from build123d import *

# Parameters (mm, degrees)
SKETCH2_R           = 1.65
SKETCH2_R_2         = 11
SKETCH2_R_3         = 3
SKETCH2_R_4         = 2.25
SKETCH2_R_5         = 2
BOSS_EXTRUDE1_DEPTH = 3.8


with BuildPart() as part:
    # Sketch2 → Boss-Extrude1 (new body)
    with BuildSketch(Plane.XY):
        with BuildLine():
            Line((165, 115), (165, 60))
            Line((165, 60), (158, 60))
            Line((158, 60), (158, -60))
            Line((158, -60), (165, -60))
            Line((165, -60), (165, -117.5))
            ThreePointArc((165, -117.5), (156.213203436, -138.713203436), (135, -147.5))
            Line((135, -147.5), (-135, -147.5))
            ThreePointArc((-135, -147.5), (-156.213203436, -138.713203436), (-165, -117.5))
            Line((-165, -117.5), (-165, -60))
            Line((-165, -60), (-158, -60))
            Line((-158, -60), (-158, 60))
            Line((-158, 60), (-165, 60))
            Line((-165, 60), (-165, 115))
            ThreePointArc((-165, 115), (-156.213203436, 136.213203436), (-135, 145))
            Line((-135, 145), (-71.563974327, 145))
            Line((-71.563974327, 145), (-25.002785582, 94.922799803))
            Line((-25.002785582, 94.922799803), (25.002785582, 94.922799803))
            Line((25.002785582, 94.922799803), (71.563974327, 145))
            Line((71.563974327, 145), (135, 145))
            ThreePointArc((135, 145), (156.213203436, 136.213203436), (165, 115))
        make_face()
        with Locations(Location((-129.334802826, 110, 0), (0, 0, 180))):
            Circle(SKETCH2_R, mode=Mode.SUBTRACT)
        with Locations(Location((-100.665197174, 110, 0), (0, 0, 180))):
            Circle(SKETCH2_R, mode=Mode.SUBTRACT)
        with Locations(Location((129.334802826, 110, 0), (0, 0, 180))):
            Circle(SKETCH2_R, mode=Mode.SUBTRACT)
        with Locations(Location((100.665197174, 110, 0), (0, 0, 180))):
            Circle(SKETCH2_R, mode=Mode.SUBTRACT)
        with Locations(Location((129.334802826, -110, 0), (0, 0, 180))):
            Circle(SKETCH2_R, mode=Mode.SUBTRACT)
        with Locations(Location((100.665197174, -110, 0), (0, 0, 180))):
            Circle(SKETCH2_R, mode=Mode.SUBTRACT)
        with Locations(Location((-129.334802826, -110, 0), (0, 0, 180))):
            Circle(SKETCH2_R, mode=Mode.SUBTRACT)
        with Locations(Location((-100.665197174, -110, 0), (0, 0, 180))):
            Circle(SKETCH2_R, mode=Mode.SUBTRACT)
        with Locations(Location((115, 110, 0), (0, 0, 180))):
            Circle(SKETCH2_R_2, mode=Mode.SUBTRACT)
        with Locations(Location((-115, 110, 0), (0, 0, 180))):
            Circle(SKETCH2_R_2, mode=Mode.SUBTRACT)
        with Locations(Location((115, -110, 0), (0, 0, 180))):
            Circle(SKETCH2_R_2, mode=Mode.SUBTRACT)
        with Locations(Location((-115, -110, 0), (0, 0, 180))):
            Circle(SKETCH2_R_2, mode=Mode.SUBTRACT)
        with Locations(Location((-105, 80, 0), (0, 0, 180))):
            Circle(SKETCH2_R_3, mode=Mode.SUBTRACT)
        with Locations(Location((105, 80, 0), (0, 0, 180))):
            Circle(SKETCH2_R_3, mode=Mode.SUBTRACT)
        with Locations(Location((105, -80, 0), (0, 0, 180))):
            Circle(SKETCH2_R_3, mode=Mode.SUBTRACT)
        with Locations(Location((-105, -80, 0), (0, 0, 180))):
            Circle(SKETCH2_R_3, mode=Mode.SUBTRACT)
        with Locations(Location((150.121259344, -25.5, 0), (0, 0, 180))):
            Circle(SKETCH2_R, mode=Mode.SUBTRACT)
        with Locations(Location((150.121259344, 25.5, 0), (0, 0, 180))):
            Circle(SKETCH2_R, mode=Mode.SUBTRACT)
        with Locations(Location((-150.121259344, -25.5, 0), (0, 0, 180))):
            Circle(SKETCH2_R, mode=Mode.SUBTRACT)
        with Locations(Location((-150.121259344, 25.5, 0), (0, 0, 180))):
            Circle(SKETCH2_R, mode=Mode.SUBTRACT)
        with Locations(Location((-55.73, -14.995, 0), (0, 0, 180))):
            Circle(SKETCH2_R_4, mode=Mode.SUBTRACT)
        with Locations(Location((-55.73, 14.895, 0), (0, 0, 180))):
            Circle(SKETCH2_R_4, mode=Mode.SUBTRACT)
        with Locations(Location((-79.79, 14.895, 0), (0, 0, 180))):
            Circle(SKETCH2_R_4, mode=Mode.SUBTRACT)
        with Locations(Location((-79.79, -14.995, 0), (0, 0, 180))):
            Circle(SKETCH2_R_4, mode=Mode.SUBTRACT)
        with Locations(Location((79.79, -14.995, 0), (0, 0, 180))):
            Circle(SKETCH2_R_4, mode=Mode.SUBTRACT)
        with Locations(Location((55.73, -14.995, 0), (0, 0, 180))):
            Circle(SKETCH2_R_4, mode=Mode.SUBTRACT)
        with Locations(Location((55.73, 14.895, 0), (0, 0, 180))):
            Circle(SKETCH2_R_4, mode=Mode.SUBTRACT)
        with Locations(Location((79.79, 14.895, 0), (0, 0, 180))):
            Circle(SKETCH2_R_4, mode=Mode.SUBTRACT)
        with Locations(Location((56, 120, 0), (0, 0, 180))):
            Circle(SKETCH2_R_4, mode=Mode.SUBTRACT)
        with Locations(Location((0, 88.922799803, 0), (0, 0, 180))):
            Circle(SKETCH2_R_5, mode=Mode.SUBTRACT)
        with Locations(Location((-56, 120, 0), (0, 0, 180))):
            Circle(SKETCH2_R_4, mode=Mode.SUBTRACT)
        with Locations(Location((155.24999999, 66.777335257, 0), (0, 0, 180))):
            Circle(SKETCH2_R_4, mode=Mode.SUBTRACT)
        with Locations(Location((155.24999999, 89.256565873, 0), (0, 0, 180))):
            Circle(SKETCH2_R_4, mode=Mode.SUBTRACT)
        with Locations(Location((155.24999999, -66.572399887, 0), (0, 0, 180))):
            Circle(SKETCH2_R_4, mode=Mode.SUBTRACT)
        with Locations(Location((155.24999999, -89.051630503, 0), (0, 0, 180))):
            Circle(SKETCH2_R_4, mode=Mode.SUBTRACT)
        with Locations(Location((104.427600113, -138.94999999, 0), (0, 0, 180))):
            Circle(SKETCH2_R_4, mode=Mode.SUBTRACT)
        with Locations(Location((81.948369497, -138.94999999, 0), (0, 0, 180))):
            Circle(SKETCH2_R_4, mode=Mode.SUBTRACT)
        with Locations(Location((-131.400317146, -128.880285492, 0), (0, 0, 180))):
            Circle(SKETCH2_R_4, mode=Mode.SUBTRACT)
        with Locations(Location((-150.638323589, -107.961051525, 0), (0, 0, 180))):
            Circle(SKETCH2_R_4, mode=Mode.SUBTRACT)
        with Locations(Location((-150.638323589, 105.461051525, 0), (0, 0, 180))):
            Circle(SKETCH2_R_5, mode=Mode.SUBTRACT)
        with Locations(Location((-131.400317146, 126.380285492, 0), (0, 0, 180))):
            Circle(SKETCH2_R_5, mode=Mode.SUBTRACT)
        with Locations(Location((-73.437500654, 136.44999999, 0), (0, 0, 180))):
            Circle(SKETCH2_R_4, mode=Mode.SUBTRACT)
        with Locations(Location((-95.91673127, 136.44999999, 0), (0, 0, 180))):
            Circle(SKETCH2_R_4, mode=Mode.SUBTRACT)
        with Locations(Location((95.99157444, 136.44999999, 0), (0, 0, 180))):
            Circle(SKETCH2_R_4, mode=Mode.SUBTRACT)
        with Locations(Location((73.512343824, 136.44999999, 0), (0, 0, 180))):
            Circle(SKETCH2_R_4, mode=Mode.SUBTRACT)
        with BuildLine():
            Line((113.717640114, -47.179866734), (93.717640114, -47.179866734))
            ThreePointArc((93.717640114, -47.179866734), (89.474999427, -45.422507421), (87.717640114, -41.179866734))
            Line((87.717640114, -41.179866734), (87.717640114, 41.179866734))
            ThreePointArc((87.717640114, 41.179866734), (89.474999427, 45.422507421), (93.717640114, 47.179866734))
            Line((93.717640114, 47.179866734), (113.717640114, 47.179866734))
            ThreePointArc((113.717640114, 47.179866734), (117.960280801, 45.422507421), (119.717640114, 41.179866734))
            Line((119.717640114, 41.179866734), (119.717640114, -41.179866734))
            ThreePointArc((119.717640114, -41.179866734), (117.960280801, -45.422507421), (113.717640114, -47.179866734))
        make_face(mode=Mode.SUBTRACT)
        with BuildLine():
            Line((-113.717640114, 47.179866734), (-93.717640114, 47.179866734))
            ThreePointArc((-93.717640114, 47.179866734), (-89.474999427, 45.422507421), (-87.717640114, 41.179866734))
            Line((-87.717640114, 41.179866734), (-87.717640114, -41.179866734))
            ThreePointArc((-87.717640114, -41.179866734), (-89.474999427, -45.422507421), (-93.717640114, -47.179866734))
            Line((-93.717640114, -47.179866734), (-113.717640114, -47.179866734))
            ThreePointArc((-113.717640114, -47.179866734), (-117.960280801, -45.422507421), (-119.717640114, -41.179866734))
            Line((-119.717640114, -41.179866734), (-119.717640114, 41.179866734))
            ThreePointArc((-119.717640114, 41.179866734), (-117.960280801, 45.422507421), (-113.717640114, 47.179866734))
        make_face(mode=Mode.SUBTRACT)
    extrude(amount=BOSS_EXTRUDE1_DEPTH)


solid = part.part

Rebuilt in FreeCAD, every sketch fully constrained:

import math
import FreeCAD as App
import Part
import Sketcher

V = App.Vector

doc = App.newDocument("Part")
body = doc.addObject("PartDesign::Body", "Body")

sketch1 = body.newObject("Sketcher::SketchObject", "Sketch")
sketch1.AttachmentSupport = (doc.getObject("XY_Plane"), [""])
sketch1.MapMode = "FlatFace"
sketch1.addGeometry(Part.LineSegment(V(165, 60, 0), V(165, 115, 0)), False)
sketch1.addGeometry(Part.ArcOfCircle(Part.Circle(V(135, 115, 0), V(0, 0, 1), 30), math.radians(0), math.radians(90)), False)
sketch1.addGeometry(Part.LineSegment(V(135, 145, 0), V(71.563974, 145, 0)), False)
sketch1.addGeometry(Part.LineSegment(V(71.563974, 145, 0), V(25.002786, 94.9228, 0)), False)
sketch1.addGeometry(Part.LineSegment(V(25.002786, 94.9228, 0), V(-25.002786, 94.9228, 0)), False)
sketch1.addGeometry(Part.LineSegment(V(-25.002786, 94.9228, 0), V(-71.563974, 145, 0)), False)
sketch1.addGeometry(Part.LineSegment(V(-71.563974, 145, 0), V(-135, 145, 0)), False)
sketch1.addGeometry(Part.ArcOfCircle(Part.Circle(V(-135, 115, 0), V(0, 0, 1), 30), math.radians(90), math.radians(180)), False)
sketch1.addGeometry(Part.LineSegment(V(-165, 115, 0), V(-165, 60, 0)), False)
sketch1.addGeometry(Part.LineSegment(V(-165, 60, 0), V(-158, 60, 0)), False)
sketch1.addGeometry(Part.LineSegment(V(-158, 60, 0), V(-158, -60, 0)), False)
sketch1.addGeometry(Part.LineSegment(V(-158, -60, 0), V(-165, -60, 0)), False)
sketch1.addGeometry(Part.LineSegment(V(-165, -60, 0), V(-165, -117.5, 0)), False)
sketch1.addGeometry(Part.ArcOfCircle(Part.Circle(V(-135, -117.5, 0), V(0, 0, 1), 30), math.radians(180), math.radians(270)), False)
sketch1.addGeometry(Part.LineSegment(V(-135, -147.5, 0), V(135, -147.5, 0)), False)
sketch1.addGeometry(Part.ArcOfCircle(Part.Circle(V(135, -117.5, 0), V(0, 0, 1), 30), math.radians(-90), math.radians(0)), False)
sketch1.addGeometry(Part.LineSegment(V(165, -117.5, 0), V(165, -60, 0)), False)
sketch1.addGeometry(Part.LineSegment(V(165, -60, 0), V(158, -60, 0)), False)
sketch1.addGeometry(Part.LineSegment(V(158, -60, 0), V(158, 60, 0)), False)
sketch1.addGeometry(Part.LineSegment(V(158, 60, 0), V(165, 60, 0)), False)
sketch1.addGeometry(Part.Circle(V(129.334803, -110, 0), V(0, 0, 1), 1.65), False)
sketch1.addGeometry(Part.Circle(V(104.4276, -138.95, 0), V(0, 0, 1), 2.25), False)
sketch1.addGeometry(Part.Circle(V(81.948369, -138.95, 0), V(0, 0, 1), 2.25), False)
sketch1.addGeometry(Part.Circle(V(115, -110, 0), V(0, 0, 1), 11), False)
sketch1.addGeometry(Part.Circle(V(100.665197, -110, 0), V(0, 0, 1), 1.65), False)
sketch1.addGeometry(Part.Circle(V(155.25, -89.051631, 0), V(0, 0, 1), 2.25), False)
sketch1.addGeometry(Part.Circle(V(105, -80, 0), V(0, 0, 1), 3), False)
sketch1.addGeometry(Part.Circle(V(155.25, -66.5724, 0), V(0, 0, 1), 2.25), False)
sketch1.addGeometry(Part.Circle(V(150.121259, -25.5, 0), V(0, 0, 1), 1.65), False)
sketch1.addGeometry(Part.Circle(V(79.79, -14.995, 0), V(0, 0, 1), 2.25), False)
sketch1.addGeometry(Part.Circle(V(55.73, -14.995, 0), V(0, 0, 1), 2.25), False)
sketch1.addGeometry(Part.Circle(V(-100.665197, -110, 0), V(0, 0, 1), 1.65), False)
sketch1.addGeometry(Part.Circle(V(-131.400317, -128.880285, 0), V(0, 0, 1), 2.25), False)
sketch1.addGeometry(Part.Circle(V(-115, -110, 0), V(0, 0, 1), 11), False)
sketch1.addGeometry(Part.Circle(V(-129.334803, -110, 0), V(0, 0, 1), 1.65), False)
sketch1.addGeometry(Part.Circle(V(-150.638324, -107.961052, 0), V(0, 0, 1), 2.25), False)
sketch1.addGeometry(Part.Circle(V(-105, -80, 0), V(0, 0, 1), 3), False)
sketch1.addGeometry(Part.Circle(V(-55.73, -14.995, 0), V(0, 0, 1), 2.25), False)
sketch1.addGeometry(Part.Circle(V(-79.79, -14.995, 0), V(0, 0, 1), 2.25), False)
sketch1.addGeometry(Part.Circle(V(-150.121259, -25.5, 0), V(0, 0, 1), 1.65), False)
sketch1.addGeometry(Part.Circle(V(150.121259, 25.5, 0), V(0, 0, 1), 1.65), False)
sketch1.addGeometry(Part.LineSegment(V(113.71764, -47.179867, 0), V(93.71764, -47.179867, 0)), False)
sketch1.addGeometry(Part.ArcOfCircle(Part.Circle(V(93.71764, -41.179867, 0), V(0, 0, 1), 6), math.radians(180), math.radians(270)), False)
sketch1.addGeometry(Part.LineSegment(V(87.71764, -41.179867, 0), V(87.71764, 41.179867, 0)), False)
sketch1.addGeometry(Part.ArcOfCircle(Part.Circle(V(93.71764, 41.179867, 0), V(0, 0, 1), 6), math.radians(90), math.radians(180)), False)
sketch1.addGeometry(Part.LineSegment(V(93.71764, 47.179867, 0), V(113.71764, 47.179867, 0)), False)
sketch1.addGeometry(Part.ArcOfCircle(Part.Circle(V(113.71764, 41.179867, 0), V(0, 0, 1), 6), math.radians(0), math.radians(90)), False)
sketch1.addGeometry(Part.LineSegment(V(119.71764, 41.179867, 0), V(119.71764, -41.179867, 0)), False)
sketch1.addGeometry(Part.ArcOfCircle(Part.Circle(V(113.71764, -41.179867, 0), V(0, 0, 1), 6), math.radians(-90), math.radians(0)), False)
sketch1.addGeometry(Part.Circle(V(155.25, 66.777335, 0), V(0, 0, 1), 2.25), False)
sketch1.addGeometry(Part.Circle(V(79.79, 14.895, 0), V(0, 0, 1), 2.25), False)
sketch1.addGeometry(Part.Circle(V(55.73, 14.895, 0), V(0, 0, 1), 2.25), False)
sketch1.addGeometry(Part.Circle(V(155.25, 89.256566, 0), V(0, 0, 1), 2.25), False)
sketch1.addGeometry(Part.Circle(V(105, 80, 0), V(0, 0, 1), 3), False)
sketch1.addGeometry(Part.Circle(V(129.334803, 110, 0), V(0, 0, 1), 1.65), False)
sketch1.addGeometry(Part.Circle(V(115, 110, 0), V(0, 0, 1), 11), False)
sketch1.addGeometry(Part.Circle(V(100.665197, 110, 0), V(0, 0, 1), 1.65), False)
sketch1.addGeometry(Part.Circle(V(95.991574, 136.45, 0), V(0, 0, 1), 2.25), False)
sketch1.addGeometry(Part.Circle(V(56, 120, 0), V(0, 0, 1), 2.25), False)
sketch1.addGeometry(Part.Circle(V(73.512344, 136.45, 0), V(0, 0, 1), 2.25), False)
sketch1.addGeometry(Part.Circle(V(-55.73, 14.895, 0), V(0, 0, 1), 2.25), False)
sketch1.addGeometry(Part.Circle(V(-79.79, 14.895, 0), V(0, 0, 1), 2.25), False)
sketch1.addGeometry(Part.LineSegment(V(-113.71764, 47.179867, 0), V(-93.71764, 47.179867, 0)), False)
sketch1.addGeometry(Part.ArcOfCircle(Part.Circle(V(-93.71764, 41.179867, 0), V(0, 0, 1), 6), math.radians(0), math.radians(90)), False)
sketch1.addGeometry(Part.LineSegment(V(-87.71764, 41.179867, 0), V(-87.71764, -41.179867, 0)), False)
sketch1.addGeometry(Part.ArcOfCircle(Part.Circle(V(-93.71764, -41.179867, 0), V(0, 0, 1), 6), math.radians(-90), math.radians(0)), False)
sketch1.addGeometry(Part.LineSegment(V(-93.71764, -47.179867, 0), V(-113.71764, -47.179867, 0)), False)
sketch1.addGeometry(Part.ArcOfCircle(Part.Circle(V(-113.71764, -41.179867, 0), V(0, 0, 1), 6), math.radians(180), math.radians(270)), False)
sketch1.addGeometry(Part.LineSegment(V(-119.71764, -41.179867, 0), V(-119.71764, 41.179867, 0)), False)
sketch1.addGeometry(Part.ArcOfCircle(Part.Circle(V(-113.71764, 41.179867, 0), V(0, 0, 1), 6), math.radians(90), math.radians(180)), False)
sketch1.addGeometry(Part.Circle(V(-150.121259, 25.5, 0), V(0, 0, 1), 1.65), False)
sketch1.addGeometry(Part.Circle(V(0, 88.9228, 0), V(0, 0, 1), 2), False)
sketch1.addGeometry(Part.Circle(V(-56, 120, 0), V(0, 0, 1), 2.25), False)
sketch1.addGeometry(Part.Circle(V(-73.437501, 136.45, 0), V(0, 0, 1), 2.25), False)
sketch1.addGeometry(Part.Circle(V(-105, 80, 0), V(0, 0, 1), 3), False)
sketch1.addGeometry(Part.Circle(V(-100.665197, 110, 0), V(0, 0, 1), 1.65), False)
sketch1.addGeometry(Part.Circle(V(-95.916731, 136.45, 0), V(0, 0, 1), 2.25), False)
sketch1.addGeometry(Part.Circle(V(-115, 110, 0), V(0, 0, 1), 11), False)
sketch1.addGeometry(Part.Circle(V(-129.334803, 110, 0), V(0, 0, 1), 1.65), False)
sketch1.addGeometry(Part.Circle(V(-150.638324, 105.461052, 0), V(0, 0, 1), 2), False)
sketch1.addGeometry(Part.Circle(V(-131.400317, 126.380285, 0), V(0, 0, 1), 2), False)
sketch1.addConstraint(Sketcher.Constraint("Tangent", 0, 2, 1, 1))
sketch1.addConstraint(Sketcher.Constraint("Tangent", 1, 2, 2, 1))
sketch1.addConstraint(Sketcher.Constraint("Coincident", 2, 2, 3, 1))
sketch1.addConstraint(Sketcher.Constraint("Coincident", 3, 2, 4, 1))
sketch1.addConstraint(Sketcher.Constraint("Coincident", 4, 2, 5, 1))
sketch1.addConstraint(Sketcher.Constraint("Coincident", 5, 2, 6, 1))
sketch1.addConstraint(Sketcher.Constraint("Tangent", 6, 2, 7, 1))
sketch1.addConstraint(Sketcher.Constraint("Tangent", 7, 2, 8, 1))
sketch1.addConstraint(Sketcher.Constraint("Coincident", 8, 2, 9, 1))
sketch1.addConstraint(Sketcher.Constraint("Coincident", 9, 2, 10, 1))
sketch1.addConstraint(Sketcher.Constraint("Coincident", 10, 2, 11, 1))
sketch1.addConstraint(Sketcher.Constraint("Coincident", 11, 2, 12, 1))
sketch1.addConstraint(Sketcher.Constraint("Tangent", 12, 2, 13, 1))
sketch1.addConstraint(Sketcher.Constraint("Tangent", 13, 2, 14, 1))
sketch1.addConstraint(Sketcher.Constraint("Tangent", 14, 2, 15, 1))
sketch1.addConstraint(Sketcher.Constraint("Tangent", 15, 2, 16, 1))
sketch1.addConstraint(Sketcher.Constraint("Coincident", 16, 2, 17, 1))
sketch1.addConstraint(Sketcher.Constraint("Coincident", 17, 2, 18, 1))
sketch1.addConstraint(Sketcher.Constraint("Coincident", 18, 2, 19, 1))
sketch1.addConstraint(Sketcher.Constraint("Coincident", 19, 2, 0, 1))
sketch1.addConstraint(Sketcher.Constraint("Tangent", 41, 2, 42, 2))
sketch1.addConstraint(Sketcher.Constraint("Tangent", 42, 1, 43, 1))
sketch1.addConstraint(Sketcher.Constraint("Tangent", 43, 2, 44, 2))
sketch1.addConstraint(Sketcher.Constraint("Tangent", 44, 1, 45, 1))
sketch1.addConstraint(Sketcher.Constraint("Tangent", 45, 2, 46, 2))
sketch1.addConstraint(Sketcher.Constraint("Tangent", 46, 1, 47, 1))
sketch1.addConstraint(Sketcher.Constraint("Tangent", 47, 2, 48, 2))
sketch1.addConstraint(Sketcher.Constraint("Tangent", 48, 1, 41, 1))
sketch1.addConstraint(Sketcher.Constraint("Tangent", 62, 2, 63, 2))
sketch1.addConstraint(Sketcher.Constraint("Tangent", 63, 1, 64, 1))
sketch1.addConstraint(Sketcher.Constraint("Tangent", 64, 2, 65, 2))
sketch1.addConstraint(Sketcher.Constraint("Tangent", 65, 1, 66, 1))
sketch1.addConstraint(Sketcher.Constraint("Tangent", 66, 2, 67, 2))
sketch1.addConstraint(Sketcher.Constraint("Tangent", 67, 1, 68, 1))
sketch1.addConstraint(Sketcher.Constraint("Tangent", 68, 2, 69, 2))
sketch1.addConstraint(Sketcher.Constraint("Tangent", 69, 1, 62, 1))
sketch1.addConstraint(Sketcher.Constraint("Vertical", 0))
sketch1.addConstraint(Sketcher.Constraint("Horizontal", 2))
sketch1.addConstraint(Sketcher.Constraint("Horizontal", 4))
sketch1.addConstraint(Sketcher.Constraint("Horizontal", 6))
sketch1.addConstraint(Sketcher.Constraint("Vertical", 8))
sketch1.addConstraint(Sketcher.Constraint("Horizontal", 9))
sketch1.addConstraint(Sketcher.Constraint("Vertical", 10))
sketch1.addConstraint(Sketcher.Constraint("Horizontal", 11))
sketch1.addConstraint(Sketcher.Constraint("Vertical", 12))
sketch1.addConstraint(Sketcher.Constraint("Horizontal", 14))
sketch1.addConstraint(Sketcher.Constraint("Vertical", 16))
sketch1.addConstraint(Sketcher.Constraint("Horizontal", 17))
sketch1.addConstraint(Sketcher.Constraint("Vertical", 18))
sketch1.addConstraint(Sketcher.Constraint("Horizontal", 19))
sketch1.addConstraint(Sketcher.Constraint("Horizontal", 41))
sketch1.addConstraint(Sketcher.Constraint("Vertical", 43))
sketch1.addConstraint(Sketcher.Constraint("Horizontal", 45))
sketch1.addConstraint(Sketcher.Constraint("Vertical", 47))
sketch1.addConstraint(Sketcher.Constraint("Horizontal", 62))
sketch1.addConstraint(Sketcher.Constraint("Vertical", 64))
sketch1.addConstraint(Sketcher.Constraint("Horizontal", 66))
sketch1.addConstraint(Sketcher.Constraint("Vertical", 68))
sketch1.addConstraint(Sketcher.Constraint("Equal", 1, 7))
sketch1.addConstraint(Sketcher.Constraint("Equal", 7, 13))
sketch1.addConstraint(Sketcher.Constraint("Equal", 13, 15))
sketch1.addConstraint(Sketcher.Constraint("Equal", 21, 22))
sketch1.addConstraint(Sketcher.Constraint("Equal", 20, 24))
sketch1.addConstraint(Sketcher.Constraint("Equal", 22, 25))
sketch1.addConstraint(Sketcher.Constraint("Equal", 25, 27))
sketch1.addConstraint(Sketcher.Constraint("Equal", 24, 28))
sketch1.addConstraint(Sketcher.Constraint("Equal", 27, 29))
sketch1.addConstraint(Sketcher.Constraint("Equal", 29, 30))
sketch1.addConstraint(Sketcher.Constraint("Equal", 28, 31))
sketch1.addConstraint(Sketcher.Constraint("Equal", 30, 32))
sketch1.addConstraint(Sketcher.Constraint("Equal", 23, 33))
sketch1.addConstraint(Sketcher.Constraint("Equal", 31, 34))
sketch1.addConstraint(Sketcher.Constraint("Equal", 32, 35))
sketch1.addConstraint(Sketcher.Constraint("Equal", 26, 36))
sketch1.addConstraint(Sketcher.Constraint("Equal", 35, 37))
sketch1.addConstraint(Sketcher.Constraint("Equal", 37, 38))
sketch1.addConstraint(Sketcher.Constraint("Equal", 34, 39))
sketch1.addConstraint(Sketcher.Constraint("Equal", 39, 40))
sketch1.addConstraint(Sketcher.Constraint("Equal", 42, 44))
sketch1.addConstraint(Sketcher.Constraint("Equal", 44, 46))
sketch1.addConstraint(Sketcher.Constraint("Equal", 46, 48))
sketch1.addConstraint(Sketcher.Constraint("Equal", 38, 49))
sketch1.addConstraint(Sketcher.Constraint("Equal", 49, 50))
sketch1.addConstraint(Sketcher.Constraint("Equal", 50, 51))
sketch1.addConstraint(Sketcher.Constraint("Equal", 51, 52))
sketch1.addConstraint(Sketcher.Constraint("Equal", 36, 53))
sketch1.addConstraint(Sketcher.Constraint("Equal", 40, 54))
sketch1.addConstraint(Sketcher.Constraint("Equal", 33, 55))
sketch1.addConstraint(Sketcher.Constraint("Equal", 54, 56))
sketch1.addConstraint(Sketcher.Constraint("Equal", 52, 57))
sketch1.addConstraint(Sketcher.Constraint("Equal", 57, 58))
sketch1.addConstraint(Sketcher.Constraint("Equal", 58, 59))
sketch1.addConstraint(Sketcher.Constraint("Equal", 59, 60))
sketch1.addConstraint(Sketcher.Constraint("Equal", 60, 61))
sketch1.addConstraint(Sketcher.Constraint("Equal", 48, 63))
sketch1.addConstraint(Sketcher.Constraint("Equal", 63, 65))
sketch1.addConstraint(Sketcher.Constraint("Equal", 65, 67))
sketch1.addConstraint(Sketcher.Constraint("Equal", 67, 69))
sketch1.addConstraint(Sketcher.Constraint("Equal", 56, 70))
sketch1.addConstraint(Sketcher.Constraint("Equal", 61, 72))
sketch1.addConstraint(Sketcher.Constraint("Equal", 72, 73))
sketch1.addConstraint(Sketcher.Constraint("Equal", 53, 74))
sketch1.addConstraint(Sketcher.Constraint("Equal", 70, 75))
sketch1.addConstraint(Sketcher.Constraint("Equal", 73, 76))
sketch1.addConstraint(Sketcher.Constraint("Equal", 55, 77))
sketch1.addConstraint(Sketcher.Constraint("Equal", 75, 78))
sketch1.addConstraint(Sketcher.Constraint("Equal", 71, 79))
sketch1.addConstraint(Sketcher.Constraint("Equal", 79, 80))
sketch1.addConstraint(Sketcher.Constraint("Symmetric", 39, 3, 40, 3, -1, 1))
sketch1.addConstraint(Sketcher.Constraint("Symmetric", 36, 3, 53, 3, -1, 1))
sketch1.addConstraint(Sketcher.Constraint("Symmetric", 34, 3, 54, 3, -1, 1))
sketch1.addConstraint(Sketcher.Constraint("Symmetric", 33, 3, 55, 3, -1, 1))
sketch1.addConstraint(Sketcher.Constraint("Symmetric", 31, 3, 56, 3, -1, 1))
sketch1.addConstraint(Sketcher.Constraint("Symmetric", 42, 3, 63, 3, -1, 1))
sketch1.addConstraint(Sketcher.Constraint("Symmetric", 46, 3, 67, 3, -1, 1))
sketch1.addConstraint(Sketcher.Constraint("Symmetric", 28, 3, 70, 3, -1, 1))
sketch1.addConstraint(Sketcher.Constraint("Symmetric", 26, 3, 74, 3, -1, 1))
sketch1.addConstraint(Sketcher.Constraint("Symmetric", 24, 3, 75, 3, -1, 1))
sketch1.addConstraint(Sketcher.Constraint("Symmetric", 23, 3, 77, 3, -1, 1))
sketch1.addConstraint(Sketcher.Constraint("Symmetric", 20, 3, 78, 3, -1, 1))
sketch1.addConstraint(Sketcher.Constraint("Symmetric", 8, 2, 16, 2, -1, 1))
sketch1.addConstraint(Sketcher.Constraint("Symmetric", 10, 2, 18, 2, -1, 1))
sketch1.addConstraint(Sketcher.Constraint("Symmetric", 1, 3, 7, 3, -2))
sketch1.addConstraint(Sketcher.Constraint("Symmetric", 24, 3, 31, 3, -2))
sketch1.addConstraint(Sketcher.Constraint("Symmetric", 23, 3, 33, 3, -2))
sketch1.addConstraint(Sketcher.Constraint("Symmetric", 20, 3, 34, 3, -2))
sketch1.addConstraint(Sketcher.Constraint("Symmetric", 26, 3, 36, 3, -2))
sketch1.addConstraint(Sketcher.Constraint("Symmetric", 30, 3, 37, 3, -2))
sketch1.addConstraint(Sketcher.Constraint("Symmetric", 29, 3, 38, 3, -2))
sketch1.addConstraint(Sketcher.Constraint("Symmetric", 28, 3, 39, 3, -2))
sketch1.addConstraint(Sketcher.Constraint("Symmetric", 51, 3, 60, 3, -2))
sketch1.addConstraint(Sketcher.Constraint("Symmetric", 50, 3, 61, 3, -2))
sketch1.addConstraint(Sketcher.Constraint("Symmetric", 58, 3, 72, 3, -2))
sketch1.addConstraint(Sketcher.Constraint("Symmetric", 11, 2, 16, 2, -2))
sketch1.addConstraint(Sketcher.Constraint("PointOnObject", 71, 3, -2))
sketch1.addConstraint(Sketcher.Constraint("Horizontal", 21, 3, 22, 3))
sketch1.addConstraint(Sketcher.Constraint("Horizontal", 20, 3, 23, 3))
sketch1.addConstraint(Sketcher.Constraint("Horizontal", 23, 3, 24, 3))
sketch1.addConstraint(Sketcher.Constraint("Horizontal", 29, 3, 30, 3))
sketch1.addConstraint(Sketcher.Constraint("Horizontal", 50, 3, 51, 3))
sketch1.addConstraint(Sketcher.Constraint("Horizontal", 57, 3, 59, 3))
sketch1.addConstraint(Sketcher.Constraint("Horizontal", 46, 3, 63, 3))
sketch1.addConstraint(Sketcher.Constraint("Horizontal", 59, 3, 73, 3))
sketch1.addConstraint(Sketcher.Constraint("Horizontal", 73, 3, 76, 3))
sketch1.addConstraint(Sketcher.Constraint("Vertical", 25, 3, 27, 3))
sketch1.addConstraint(Sketcher.Constraint("Vertical", 27, 3, 49, 3))
sketch1.addConstraint(Sketcher.Constraint("Vertical", 29, 3, 50, 3))
sketch1.addConstraint(Sketcher.Constraint("Vertical", 30, 3, 51, 3))
sketch1.addConstraint(Sketcher.Constraint("Vertical", 49, 3, 52, 3))
sketch1.addConstraint(Sketcher.Constraint("Vertical", 35, 3, 79, 3))
sketch1.addConstraint(Sketcher.Constraint("Vertical", 32, 3, 80, 3))
sketch1.addConstraint(Sketcher.Constraint("Equal", 2, 6))
sketch1.addConstraint(Sketcher.Constraint("Equal", 3, 5))
sketch1.addConstraint(Sketcher.Constraint("Diameter", 23, 22.0))
sketch1.addConstraint(Sketcher.Constraint("Diameter", 26, 6.0))
sketch1.addConstraint(Sketcher.Constraint("Diameter", 71, 4.0))
sketch1.addConstraint(Sketcher.Constraint("Radius", 1, 30.0))
sketch1.addConstraint(Sketcher.Constraint("Radius", 42, 6.0))
sketch1.addConstraint(Sketcher.Constraint("Diameter", 20, 3.3))
sketch1.addConstraint(Sketcher.Constraint("Diameter", 21, 4.5))
sketch1.addConstraint(Sketcher.Constraint("DistanceX", 9, 1, 9, 2, 7.0))
sketch1.addConstraint(Sketcher.Constraint("DistanceX", 14, 1, 14, 2, 270.0))
sketch1.addConstraint(Sketcher.Constraint("DistanceX", 41, 2, 41, 1, 20.0))
sketch1.addConstraint(Sketcher.Constraint("DistanceY", 0, 1, 0, 2, 55.0))
sketch1.addConstraint(Sketcher.Constraint("DistanceY", 10, 2, 10, 1, 120.0))
sketch1.addConstraint(Sketcher.Constraint("DistanceY", 12, 2, 12, 1, 57.5))
sketch1.addConstraint(Sketcher.Constraint("DistanceY", 20, 3, -1, 1, 110.0))
sketch1.addConstraint(Sketcher.Constraint("DistanceX", -1, 1, 23, 3, 115.0))
sketch1.addConstraint(Sketcher.Constraint("DistanceX", -1, 1, 26, 3, 105.0))
sketch1.addConstraint(Sketcher.Constraint("DistanceY", 26, 3, -1, 1, 80.0))
sketch1.addConstraint(Sketcher.Constraint("DistanceX", -1, 1, 58, 3, 56.0))
sketch1.addConstraint(Sketcher.Constraint("DistanceY", -1, 1, 58, 3, 120.0))
sketch1.addConstraint(Sketcher.Constraint("DistanceY", 28, 3, -1, 1, 25.5))
sketch1.addConstraint(Sketcher.Constraint("DistanceY", 21, 3, -1, 1, 138.95))
sketch1.addConstraint(Sketcher.Constraint("DistanceX", -1, 1, 25, 3, 155.25))
sketch1.addConstraint(Sketcher.Constraint("DistanceX", -1, 1, 29, 3, 79.79))
sketch1.addConstraint(Sketcher.Constraint("DistanceX", -1, 1, 30, 3, 55.73))
sketch1.addConstraint(Sketcher.Constraint("DistanceY", -1, 1, 57, 3, 136.45))
sketch1.addConstraint(Sketcher.Constraint("DistanceY", 29, 3, -1, 1, 14.995))
sketch1.addConstraint(Sketcher.Constraint("DistanceY", -1, 1, 50, 3, 14.895))
sketch1.addConstraint(Sketcher.Constraint("DistanceX", 4, 2, 4, 1, 50.005571))
sketch1.addConstraint(Sketcher.Constraint("DistanceX", -1, 1, 21, 3, 104.4276))
sketch1.addConstraint(Sketcher.Constraint("DistanceY", 27, 3, -1, 1, 66.5724))
sketch1.addConstraint(Sketcher.Constraint("DistanceY", -1, 1, 71, 3, 88.9228))
sketch1.addConstraint(Sketcher.Constraint("DistanceX", 73, 3, -1, 1, 73.437501))
sketch1.addConstraint(Sketcher.Constraint("DistanceY", -1, 1, 3, 2, 94.9228))
sketch1.addConstraint(Sketcher.Constraint("DistanceX", 2, 2, 2, 1, 63.436026))
sketch1.addConstraint(Sketcher.Constraint("DistanceY", 43, 1, 43, 2, 82.359733))
sketch1.addConstraint(Sketcher.Constraint("DistanceX", -1, 1, 22, 3, 81.948369))
sketch1.addConstraint(Sketcher.Constraint("DistanceY", 25, 3, -1, 1, 89.051631))
sketch1.addConstraint(Sketcher.Constraint("DistanceX", -1, 1, 28, 3, 150.121259))
sketch1.addConstraint(Sketcher.Constraint("DistanceY", 35, 3, -1, 1, 107.961052))
sketch1.addConstraint(Sketcher.Constraint("DistanceX", -1, 1, 42, 3, 93.71764))
sketch1.addConstraint(Sketcher.Constraint("DistanceX", 76, 3, -1, 1, 95.916731))
sketch1.addConstraint(Sketcher.Constraint("DistanceY", -1, 1, 79, 3, 105.461052))
sketch1.addConstraint(Sketcher.Constraint("DistanceX", -1, 1, 20, 3, 129.334803))
sketch1.addConstraint(Sketcher.Constraint("DistanceX", -1, 1, 24, 3, 100.665197))
sketch1.addConstraint(Sketcher.Constraint("DistanceX", 32, 3, -1, 1, 131.400317))
sketch1.addConstraint(Sketcher.Constraint("DistanceY", 32, 3, -1, 1, 128.880285))
sketch1.addConstraint(Sketcher.Constraint("DistanceX", 35, 3, -1, 1, 150.638324))
sketch1.addConstraint(Sketcher.Constraint("DistanceY", -1, 1, 49, 3, 66.777335))
sketch1.addConstraint(Sketcher.Constraint("DistanceY", -1, 1, 52, 3, 89.256566))
sketch1.addConstraint(Sketcher.Constraint("DistanceX", -1, 1, 57, 3, 95.991574))
sketch1.addConstraint(Sketcher.Constraint("DistanceX", -1, 1, 59, 3, 73.512344))
sketch1.addConstraint(Sketcher.Constraint("DistanceY", -1, 1, 80, 3, 126.380285))
pad1 = body.newObject("PartDesign::Pad", "Pad")
pad1.Profile = sketch1
pad1.Length = 3.8

doc.recompute()
